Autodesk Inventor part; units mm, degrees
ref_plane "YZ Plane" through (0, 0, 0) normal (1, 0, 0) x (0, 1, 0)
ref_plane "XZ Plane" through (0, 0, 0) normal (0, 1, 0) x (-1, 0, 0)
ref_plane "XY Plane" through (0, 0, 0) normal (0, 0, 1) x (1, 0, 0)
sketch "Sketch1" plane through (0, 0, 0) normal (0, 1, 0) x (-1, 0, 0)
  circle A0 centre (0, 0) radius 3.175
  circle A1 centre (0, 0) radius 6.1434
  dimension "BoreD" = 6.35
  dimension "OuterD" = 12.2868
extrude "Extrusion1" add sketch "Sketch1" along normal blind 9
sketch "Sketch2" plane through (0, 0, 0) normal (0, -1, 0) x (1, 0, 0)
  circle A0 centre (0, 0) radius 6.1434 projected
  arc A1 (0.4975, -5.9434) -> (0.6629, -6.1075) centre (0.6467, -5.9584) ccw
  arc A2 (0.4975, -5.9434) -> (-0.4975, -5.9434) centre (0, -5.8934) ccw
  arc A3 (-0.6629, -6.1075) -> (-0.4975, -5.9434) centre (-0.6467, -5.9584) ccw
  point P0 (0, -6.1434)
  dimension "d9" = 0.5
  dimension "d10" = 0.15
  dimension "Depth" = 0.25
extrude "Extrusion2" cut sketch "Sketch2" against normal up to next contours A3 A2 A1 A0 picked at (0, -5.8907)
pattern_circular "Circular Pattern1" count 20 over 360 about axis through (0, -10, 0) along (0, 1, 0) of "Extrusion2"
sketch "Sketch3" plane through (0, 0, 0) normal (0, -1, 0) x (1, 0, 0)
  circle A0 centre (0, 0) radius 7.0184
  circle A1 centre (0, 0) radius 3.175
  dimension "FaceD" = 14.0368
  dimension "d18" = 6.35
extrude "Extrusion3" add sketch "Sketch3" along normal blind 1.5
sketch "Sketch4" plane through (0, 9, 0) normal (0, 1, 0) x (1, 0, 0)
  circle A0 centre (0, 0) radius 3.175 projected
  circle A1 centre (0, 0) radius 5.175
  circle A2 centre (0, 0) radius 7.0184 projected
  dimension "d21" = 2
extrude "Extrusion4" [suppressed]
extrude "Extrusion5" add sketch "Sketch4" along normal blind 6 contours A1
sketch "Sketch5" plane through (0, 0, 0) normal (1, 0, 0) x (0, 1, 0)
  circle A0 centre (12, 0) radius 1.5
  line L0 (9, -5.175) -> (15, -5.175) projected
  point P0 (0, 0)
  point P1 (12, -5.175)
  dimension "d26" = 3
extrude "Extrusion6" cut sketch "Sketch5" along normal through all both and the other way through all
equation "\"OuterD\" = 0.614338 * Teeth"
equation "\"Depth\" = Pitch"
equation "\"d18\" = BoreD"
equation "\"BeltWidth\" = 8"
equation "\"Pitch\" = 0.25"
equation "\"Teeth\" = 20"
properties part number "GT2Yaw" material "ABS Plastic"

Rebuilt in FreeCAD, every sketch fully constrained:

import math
import FreeCAD as App
import Part
import Sketcher

doc = App.newDocument("Part")
body = doc.addObject("PartDesign::Body", "Body")

sketch1 = body.newObject("Sketcher::SketchObject", "Sketch")
sketch1.AttachmentSupport = (doc.getObject("XZ_Plane"), [""])
sketch1.MapMode = "FlatFace"
sketch1.addGeometry([
    Part.Circle(App.Vector(0, 0, 0), App.Vector(0, 0, 1), 6.1434),
    Part.Circle(App.Vector(0, 0, 0), App.Vector(0, 0, 1), 3.175),
], False)
sketch1.addConstraint([
    Sketcher.Constraint("Coincident", 0, 3, -1, 1),
    Sketcher.Constraint("Coincident", 1, 3, -1, 1),
    Sketcher.Constraint("Diameter", 1, 6.35),
    Sketcher.Constraint("Diameter", 0, 12.2868),
])
pad1 = body.newObject("PartDesign::Pad", "Pad")
pad1.Profile = sketch1
pad1.Length = 9
pad1.Reversed = True

sketch2 = body.newObject("Sketcher::SketchObject", "Sketch001")
sketch2.AttachmentSupport = (doc.getObject("XZ_Plane"), [""])
sketch2.MapMode = "FlatFace"
sketch2.addGeometry([
    Part.ArcOfCircle(Part.Circle(App.Vector(-0.6467, -5.9584, 0), App.Vector(0, 0, 1), 0.149977), math.radians(-96.200971), math.radians(5.741009)),
    Part.ArcOfCircle(Part.Circle(App.Vector(0, 0, 0), App.Vector(0, 0, 1), 6.1434), math.radians(-96.194559), math.radians(-83.805441)),
    Part.ArcOfCircle(Part.Circle(App.Vector(0.6467, -5.9584, 0), App.Vector(0, 0, 1), 0.149952), math.radians(174.258991), math.radians(276.200971)),
    Part.ArcOfCircle(Part.Circle(App.Vector(0, -5.8934, 0), App.Vector(0, 0, 1), 0.500006), math.radians(-5.739098), math.radians(185.739098)),
], False)
sketch2.addConstraint([
    Sketcher.Constraint("Tangent", 0, 1, 1, 1),
    Sketcher.Constraint("Tangent", 1, 2, 2, 2),
    Sketcher.Constraint("Tangent", 2, 1, 3, 1),
    Sketcher.Constraint("Tangent", 3, 2, 0, 2),
    Sketcher.Constraint("Coincident", 1, 3, -1, 1),
    Sketcher.Constraint("Equal", 0, 2),
    Sketcher.Constraint("PointOnObject", 3, 3, -2),
    Sketcher.Constraint("Radius", 3, 0.5),
    Sketcher.Constraint("Radius", 0, 0.15),
    Sketcher.Constraint("Radius", 1, 6.1434),
    Sketcher.Constraint("DistanceY", 2, 1, 3, 3, 0.05),
])
pocket1 = body.newObject("PartDesign::Pocket", "Pocket")
pocket1.Profile = sketch2
pocket1.Type = "UpToFirst"
doc.recompute()

polarpattern = body.newObject("PartDesign::PolarPattern", "PolarPattern")
polarpattern.Originals = [pocket1]
polarpattern.Axis = (doc.getObject("Y_Axis"), [""])
polarpattern.Angle = 360
polarpattern.Occurrences = 20
body.Tip = polarpattern

sketch3 = body.newObject("Sketcher::SketchObject", "Sketch002")
sketch3.AttachmentSupport = (doc.getObject("XZ_Plane"), [""])
sketch3.MapMode = "FlatFace"
sketch3.addGeometry([
    Part.Circle(App.Vector(0, 0, 0), App.Vector(0, 0, 1), 7.0184),
    Part.Circle(App.Vector(0, 0, 0), App.Vector(0, 0, 1), 3.175),
], False)
sketch3.addConstraint([
    Sketcher.Constraint("Coincident", 0, 3, -1, 1),
    Sketcher.Constraint("Coincident", 1, 3, -1, 1),
    Sketcher.Constraint("Diameter", 1, 6.35),
    Sketcher.Constraint("Diameter", 0, 14.0368),
])
pad2 = body.newObject("PartDesign::Pad", "Pad001")
pad2.Profile = sketch3
pad2.Length = 1.5

sketch4 = body.newObject("Sketcher::SketchObject", "Sketch003")
sketch4.AttachmentSupport = (doc.getObject("XZ_Plane"), [""])
sketch4.MapMode = "FlatFace"
sketch4.AttachmentOffset = App.Placement(App.Vector(0, 0, -9), App.Rotation())
sketch4.addGeometry([
    Part.Circle(App.Vector(0, 0, 0), App.Vector(0, 0, 1), 5.175),
    Part.Circle(App.Vector(0, 0, 0), App.Vector(0, 0, 1), 3.175),
], False)
sketch4.addConstraint([
    Sketcher.Constraint("Coincident", 0, 3, -1, 1),
    Sketcher.Constraint("Coincident", 1, 3, -1, 1),
    Sketcher.Constraint("Diameter", 0, 10.35),
    Sketcher.Constraint("Diameter", 1, 6.35),
])
pad3 = body.newObject("PartDesign::Pad", "Pad002")
pad3.Profile = sketch4
pad3.Length = 6
pad3.Reversed = True

sketch5 = body.newObject("Sketcher::SketchObject", "Sketch004")
sketch5.AttachmentSupport = (doc.getObject("YZ_Plane"), [""])
sketch5.MapMode = "FlatFace"
sketch5.addGeometry(Part.Circle(App.Vector(12, 0, 0), App.Vector(0, 0, 1), 1.5), False)
sketch5.addConstraint([
    Sketcher.Constraint("PointOnObject", 0, 3, -1),
    Sketcher.Constraint("Diameter", 0, 3.0),
    Sketcher.Constraint("DistanceX", -1, 1, 0, 3, 12.0),
])
pocket2 = body.newObject("PartDesign::Pocket", "Pocket001")
pocket2.Profile = sketch5
pocket2.Type = "ThroughAll"
pocket2.Midplane = True

doc.recompute()
